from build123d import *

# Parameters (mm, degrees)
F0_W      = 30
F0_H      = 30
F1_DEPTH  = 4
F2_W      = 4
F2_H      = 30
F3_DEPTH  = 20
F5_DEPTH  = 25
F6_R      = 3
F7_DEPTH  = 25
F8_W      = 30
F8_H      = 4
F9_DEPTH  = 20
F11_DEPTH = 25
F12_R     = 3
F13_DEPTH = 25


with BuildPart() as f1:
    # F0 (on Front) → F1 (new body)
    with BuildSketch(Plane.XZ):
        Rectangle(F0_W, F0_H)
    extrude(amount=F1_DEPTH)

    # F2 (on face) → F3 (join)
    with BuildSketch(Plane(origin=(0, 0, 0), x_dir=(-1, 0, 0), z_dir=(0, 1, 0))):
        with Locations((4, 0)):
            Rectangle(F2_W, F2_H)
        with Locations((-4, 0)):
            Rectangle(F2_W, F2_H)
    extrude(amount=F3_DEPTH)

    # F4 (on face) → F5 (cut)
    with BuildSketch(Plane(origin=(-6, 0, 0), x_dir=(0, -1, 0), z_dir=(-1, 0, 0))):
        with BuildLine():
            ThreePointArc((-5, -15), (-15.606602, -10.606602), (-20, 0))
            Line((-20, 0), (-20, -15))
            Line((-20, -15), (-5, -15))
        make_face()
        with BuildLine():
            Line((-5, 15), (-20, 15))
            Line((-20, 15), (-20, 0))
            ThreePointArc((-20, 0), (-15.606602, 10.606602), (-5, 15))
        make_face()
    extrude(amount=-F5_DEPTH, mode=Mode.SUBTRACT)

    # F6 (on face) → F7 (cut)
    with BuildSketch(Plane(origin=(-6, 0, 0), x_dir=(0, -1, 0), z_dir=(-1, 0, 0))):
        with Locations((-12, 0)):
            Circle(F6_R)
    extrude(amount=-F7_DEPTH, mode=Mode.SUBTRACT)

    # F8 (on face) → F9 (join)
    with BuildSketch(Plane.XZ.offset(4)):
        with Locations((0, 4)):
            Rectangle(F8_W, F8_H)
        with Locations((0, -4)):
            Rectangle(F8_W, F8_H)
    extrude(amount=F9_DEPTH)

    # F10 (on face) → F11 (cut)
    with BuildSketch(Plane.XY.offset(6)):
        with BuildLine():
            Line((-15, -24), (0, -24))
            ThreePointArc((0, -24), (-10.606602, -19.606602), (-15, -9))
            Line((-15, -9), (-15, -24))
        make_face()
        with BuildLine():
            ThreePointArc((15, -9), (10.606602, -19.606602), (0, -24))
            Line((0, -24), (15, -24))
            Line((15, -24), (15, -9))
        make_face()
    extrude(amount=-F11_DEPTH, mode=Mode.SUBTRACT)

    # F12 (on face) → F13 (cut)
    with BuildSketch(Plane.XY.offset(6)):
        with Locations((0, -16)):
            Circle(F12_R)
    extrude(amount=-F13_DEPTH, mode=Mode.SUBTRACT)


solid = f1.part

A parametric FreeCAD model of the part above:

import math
import FreeCAD as App
import Part
import Sketcher
Q = App.Units.Quantity

doc = App.newDocument("Part")
body = doc.addObject("PartDesign::Body", "Body")

# Sketch on XZ plane
sketch1 = body.newObject("Sketcher::SketchObject", "Sketch")
sketch1.AttachmentSupport = (doc.getObject("XZ_Plane"), [""])
sketch1.MapMode = "FlatFace"
sketch1.addGeometry(Part.LineSegment(App.Vector(-15, 15, 0), App.Vector(-15, -15, 0)), False)
sketch1.addGeometry(Part.LineSegment(App.Vector(-15, -15, 0), App.Vector(15, -15, 0)), False)
sketch1.addGeometry(Part.LineSegment(App.Vector(15, -15, 0), App.Vector(15, 15, 0)), False)
sketch1.addGeometry(Part.LineSegment(App.Vector(15, 15, 0), App.Vector(-15, 15, 0)), False)
sketch1.addConstraint(Sketcher.Constraint("Coincident", 0, 2, 1, 1))
sketch1.addConstraint(Sketcher.Constraint("Coincident", 1, 2, 2, 1))
sketch1.addConstraint(Sketcher.Constraint("Coincident", 2, 2, 3, 1))
sketch1.addConstraint(Sketcher.Constraint("Coincident", 3, 2, 0, 1))
sketch1.addConstraint(Sketcher.Constraint("Vertical", 0))
sketch1.addConstraint(Sketcher.Constraint("Horizontal", 1))
sketch1.addConstraint(Sketcher.Constraint("Vertical", 2))
sketch1.addConstraint(Sketcher.Constraint("Horizontal", 3))
sketch1.addConstraint(Sketcher.Constraint("Symmetric", 0, 2, 2, 2, -1, 1))
sketch1.addConstraint(Sketcher.Constraint("Equal", 3, 0))
sketch1.addConstraint(Sketcher.Constraint("DistanceX", 1, 1, 1, 2, Q("30 mm")))
pad1 = body.newObject("PartDesign::Pad", "Pad")
pad1.Profile = sketch1
pad1.Length = 4

# Sketch on XZ plane
sketch2 = body.newObject("Sketcher::SketchObject", "Sketch001")
sketch2.AttachmentSupport = (doc.getObject("XZ_Plane"), [""])
sketch2.MapMode = "FlatFace"
sketch2.addGeometry(Part.LineSegment(App.Vector(-2, 15, 0), App.Vector(-2, -15, 0)), False)
sketch2.addGeometry(Part.LineSegment(App.Vector(-2, -15, 0), App.Vector(-6, -15, 0)), False)
sketch2.addGeometry(Part.LineSegment(App.Vector(-6, -15, 0), App.Vector(-6, 15, 0)), False)
sketch2.addGeometry(Part.LineSegment(App.Vector(-6, 15, 0), App.Vector(-2, 15, 0)), False)
sketch2.addGeometry(Part.LineSegment(App.Vector(6, 15, 0), App.Vector(6, -15, 0)), False)
sketch2.addGeometry(Part.LineSegment(App.Vector(6, -15, 0), App.Vector(2, -15, 0)), False)
sketch2.addGeometry(Part.LineSegment(App.Vector(2, -15, 0), App.Vector(2, 15, 0)), False)
sketch2.addGeometry(Part.LineSegment(App.Vector(2, 15, 0), App.Vector(6, 15, 0)), False)
sketch2.addConstraint(Sketcher.Constraint("Coincident", 0, 2, 1, 1))
sketch2.addConstraint(Sketcher.Constraint("Coincident", 1, 2, 2, 1))
sketch2.addConstraint(Sketcher.Constraint("Coincident", 2, 2, 3, 1))
sketch2.addConstraint(Sketcher.Constraint("Coincident", 3, 2, 0, 1))
sketch2.addConstraint(Sketcher.Constraint("Coincident", 4, 2, 5, 1))
sketch2.addConstraint(Sketcher.Constraint("Coincident", 5, 2, 6, 1))
sketch2.addConstraint(Sketcher.Constraint("Coincident", 6, 2, 7, 1))
sketch2.addConstraint(Sketcher.Constraint("Coincident", 7, 2, 4, 1))
sketch2.addConstraint(Sketcher.Constraint("Vertical", 0))
sketch2.addConstraint(Sketcher.Constraint("Horizontal", 1))
sketch2.addConstraint(Sketcher.Constraint("Vertical", 2))
sketch2.addConstraint(Sketcher.Constraint("Horizontal", 3))
sketch2.addConstraint(Sketcher.Constraint("Vertical", 4))
sketch2.addConstraint(Sketcher.Constraint("Horizontal", 5))
sketch2.addConstraint(Sketcher.Constraint("Vertical", 6))
sketch2.addConstraint(Sketcher.Constraint("Horizontal", 7))
sketch2.addConstraint(Sketcher.Constraint("Symmetric", 2, 2, 4, 2, -1, 1))
sketch2.addConstraint(Sketcher.Constraint("Symmetric", 0, 2, 6, 2, -1, 1))
sketch2.addConstraint(Sketcher.Constraint("Horizontal", 1, 2, 4, 2))
sketch2.addConstraint(Sketcher.Constraint("DistanceX", 1, 2, 1, 1, Q("4 mm")))
sketch2.addConstraint(Sketcher.Constraint("DistanceY", 0, 2, 0, 1, Q("30 mm")))
sketch2.addConstraint(Sketcher.Constraint("DistanceX", 0, 2, -1, 1, Q("2 mm")))
pad2 = body.newObject("PartDesign::Pad", "Pad001")
pad2.Profile = sketch2
pad2.Length = 20
pad2.Reversed = True

# Sketch on YZ plane
sketch3 = body.newObject("Sketcher::SketchObject", "Sketch002")
sketch3.AttachmentSupport = (doc.getObject("YZ_Plane"), [""])
sketch3.MapMode = "FlatFace"
sketch3.AttachmentOffset = App.Placement(App.Vector(0, 0, -6), App.Rotation())
sketch3.addGeometry(Part.ArcOfCircle(Part.Circle(App.Vector(5.000001, -0.000001, 0), App.Vector(0, 0, 1), 14.999999), math.radians(-90.000004), math.radians(0.000004)), False)
sketch3.addGeometry(Part.LineSegment(App.Vector(20, 0, 0), App.Vector(20, -15, 0)), False)
sketch3.addGeometry(Part.LineSegment(App.Vector(20, -15, 0), App.Vector(5, -15, 0)), False)
sketch3.addGeometry(Part.LineSegment(App.Vector(5, 15, 0), App.Vector(20, 15, 0)), False)
sketch3.addGeometry(Part.LineSegment(App.Vector(20, 15, 0), App.Vector(20, 0, 0)), False)
sketch3.addGeometry(Part.ArcOfCircle(Part.Circle(App.Vector(5.000001, 0.000001, 0), App.Vector(0, 0, 1), 14.999999), math.radians(-0.000004), math.radians(90.000004)), False)
sketch3.addConstraint(Sketcher.Constraint("Tangent", 0, 2, 1, 1))
sketch3.addConstraint(Sketcher.Constraint("Coincident", 1, 2, 2, 1))
sketch3.addConstraint(Sketcher.Constraint("Tangent", 2, 2, 0, 1))
sketch3.addConstraint(Sketcher.Constraint("Coincident", 3, 2, 4, 1))
sketch3.addConstraint(Sketcher.Constraint("Tangent", 4, 2, 5, 1))
sketch3.addConstraint(Sketcher.Constraint("Tangent", 5, 2, 3, 1))
sketch3.addConstraint(Sketcher.Constraint("Vertical", 1))
sketch3.addConstraint(Sketcher.Constraint("Horizontal", 2))
sketch3.addConstraint(Sketcher.Constraint("Horizontal", 3))
sketch3.addConstraint(Sketcher.Constraint("Vertical", 4))
sketch3.addConstraint(Sketcher.Constraint("Coincident", 5, 3, 0, 3))
sketch3.addConstraint(Sketcher.Constraint("Equal", 0, 5))
sketch3.addConstraint(Sketcher.Constraint("PointOnObject", 0, 3, -1))
sketch3.addConstraint(Sketcher.Constraint("Radius", 0, Q("14.999999 mm")))
sketch3.addConstraint(Sketcher.Constraint("DistanceX", -1, 1, 0, 3, Q("5.000001 mm")))
pocket1 = body.newObject("PartDesign::Pocket", "Pocket")
pocket1.Profile = sketch3
pocket1.Length = 25
pocket1.Reversed = True

# Sketch on YZ plane
sketch4 = body.newObject("Sketcher::SketchObject", "Sketch003")
sketch4.AttachmentSupport = (doc.getObject("YZ_Plane"), [""])
sketch4.MapMode = "FlatFace"
sketch4.AttachmentOffset = App.Placement(App.Vector(0, 0, -6), App.Rotation())
sketch4.addGeometry(Part.Circle(App.Vector(12, 0, 0), App.Vector(0, 0, 1), 3), False)
sketch4.addConstraint(Sketcher.Constraint("PointOnObject", 0, 3, -1))
sketch4.addConstraint(Sketcher.Constraint("Diameter", 0, Q("6 mm")))
sketch4.addConstraint(Sketcher.Constraint("DistanceX", -1, 1, 0, 3, Q("12 mm")))
pocket2 = body.newObject("PartDesign::Pocket", "Pocket001")
pocket2.Profile = sketch4
pocket2.Length = 25
pocket2.Reversed = True

# Sketch on XZ plane
sketch5 = body.newObject("Sketcher::SketchObject", "Sketch004")
sketch5.AttachmentSupport = (doc.getObject("XZ_Plane"), [""])
sketch5.MapMode = "FlatFace"
sketch5.AttachmentOffset = App.Placement(App.Vector(0, 0, 4), App.Rotation())
sketch5.addGeometry(Part.LineSegment(App.Vector(-15, 6, 0), App.Vector(-15, 2, 0)), False)
sketch5.addGeometry(Part.LineSegment(App.Vector(-15, 2, 0), App.Vector(15, 2, 0)), False)
sketch5.addGeometry(Part.LineSegment(App.Vector(15, 2, 0), App.Vector(15, 6, 0)), False)
sketch5.addGeometry(Part.LineSegment(App.Vector(15, 6, 0), App.Vector(-15, 6, 0)), False)
sketch5.addGeometry(Part.LineSegment(App.Vector(-15, -2, 0), App.Vector(-15, -6, 0)), False)
sketch5.addGeometry(Part.LineSegment(App.Vector(-15, -6, 0), App.Vector(15, -6, 0)), False)
sketch5.addGeometry(Part.LineSegment(App.Vector(15, -6, 0), App.Vector(15, -2, 0)), False)
sketch5.addGeometry(Part.LineSegment(App.Vector(15, -2, 0), App.Vector(-15, -2, 0)), False)
sketch5.addConstraint(Sketcher.Constraint("Coincident", 0, 2, 1, 1))
sketch5.addConstraint(Sketcher.Constraint("Coincident", 1, 2, 2, 1))
sketch5.addConstraint(Sketcher.Constraint("Coincident", 2, 2, 3, 1))
sketch5.addConstraint(Sketcher.Constraint("Coincident", 3, 2, 0, 1))
sketch5.addConstraint(Sketcher.Constraint("Coincident", 4, 2, 5, 1))
sketch5.addConstraint(Sketcher.Constraint("Coincident", 5, 2, 6, 1))
sketch5.addConstraint(Sketcher.Constraint("Coincident", 6, 2, 7, 1))
sketch5.addConstraint(Sketcher.Constraint("Coincident", 7, 2, 4, 1))
sketch5.addConstraint(Sketcher.Constraint("Vertical", 0))
sketch5.addConstraint(Sketcher.Constraint("Horizontal", 1))
sketch5.addConstraint(Sketcher.Constraint("Vertical", 2))
sketch5.addConstraint(Sketcher.Constraint("Horizontal", 3))
sketch5.addConstraint(Sketcher.Constraint("Vertical", 4))
sketch5.addConstraint(Sketcher.Constraint("Horizontal", 5))
sketch5.addConstraint(Sketcher.Constraint("Vertical", 6))
sketch5.addConstraint(Sketcher.Constraint("Horizontal", 7))
sketch5.addConstraint(Sketcher.Constraint("Symmetric", 2, 2, 4, 2, -1, 1))
sketch5.addConstraint(Sketcher.Constraint("Symmetric", 0, 2, 6, 2, -1, 1))
sketch5.addConstraint(Sketcher.Constraint("Vertical", 3, 2, 4, 2))
sketch5.addConstraint(Sketcher.Constraint("DistanceX", 1, 1, 1, 2, Q("30 mm")))
sketch5.addConstraint(Sketcher.Constraint("DistanceY", 0, 2, 0, 1, Q("4 mm")))
sketch5.addConstraint(Sketcher.Constraint("DistanceY", -1, 1, 0, 2, Q("2 mm")))
pad3 = body.newObject("PartDesign::Pad", "Pad002")
pad3.Profile = sketch5
pad3.Length = 20

# Sketch on XY plane
sketch6 = body.newObject("Sketcher::SketchObject", "Sketch005")
sketch6.AttachmentSupport = (doc.getObject("XY_Plane"), [""])
sketch6.MapMode = "FlatFace"
sketch6.AttachmentOffset = App.Placement(App.Vector(0, 0, 6), App.Rotation())
sketch6.addGeometry(Part.LineSegment(App.Vector(-15, -24, 0), App.Vector(0, -24, 0)), False)
sketch6.addGeometry(Part.ArcOfCircle(Part.Circle(App.Vector(-0.000001, -9.000001, 0), App.Vector(0, 0, 1), 14.999999), math.radians(179.999996), math.radians(270.000004)), False)
sketch6.addGeometry(Part.LineSegment(App.Vector(-15, -9, 0), App.Vector(-15, -24, 0)), False)
sketch6.addGeometry(Part.ArcOfCircle(Part.Circle(App.Vector(0.000001, -9.000001, 0), App.Vector(0, 0, 1), 14.999999), math.radians(-90.000004), math.radians(0.000004)), False)
sketch6.addGeometry(Part.LineSegment(App.Vector(0, -24, 0), App.Vector(15, -24, 0)), False)
sketch6.addGeometry(Part.LineSegment(App.Vector(15, -24, 0), App.Vector(15, -9, 0)), False)
sketch6.addConstraint(Sketcher.Constraint("Tangent", 0, 2, 1, 2))
sketch6.addConstraint(Sketcher.Constraint("Tangent", 1, 1, 2, 1))
sketch6.addConstraint(Sketcher.Constraint("Coincident", 2, 2, 0, 1))
sketch6.addConstraint(Sketcher.Constraint("Tangent", 3, 1, 4, 1))
sketch6.addConstraint(Sketcher.Constraint("Coincident", 4, 2, 5, 1))
sketch6.addConstraint(Sketcher.Constraint("Tangent", 5, 2, 3, 2))
sketch6.addConstraint(Sketcher.Constraint("Horizontal", 0))
sketch6.addConstraint(Sketcher.Constraint("Vertical", 2))
sketch6.addConstraint(Sketcher.Constraint("Horizontal", 4))
sketch6.addConstraint(Sketcher.Constraint("Vertical", 5))
sketch6.addConstraint(Sketcher.Constraint("Coincident", 3, 3, 1, 3))
sketch6.addConstraint(Sketcher.Constraint("Equal", 1, 3))
sketch6.addConstraint(Sketcher.Constraint("PointOnObject", 1, 3, -2))
sketch6.addConstraint(Sketcher.Constraint("Radius", 1, Q("14.999999 mm")))
sketch6.addConstraint(Sketcher.Constraint("DistanceY", 1, 3, -1, 1, Q("9.000001 mm")))
pocket3 = body.newObject("PartDesign::Pocket", "Pocket002")
pocket3.Profile = sketch6
pocket3.Length = 25

# Sketch on XY plane
sketch7 = body.newObject("Sketcher::SketchObject", "Sketch006")
sketch7.AttachmentSupport = (doc.getObject("XY_Plane"), [""])
sketch7.MapMode = "FlatFace"
sketch7.AttachmentOffset = App.Placement(App.Vector(0, 0, 6), App.Rotation())
sketch7.addGeometry(Part.Circle(App.Vector(0, -16, 0), App.Vector(0, 0, 1), 3), False)
sketch7.addConstraint(Sketcher.Constraint("PointOnObject", 0, 3, -2))
sketch7.addConstraint(Sketcher.Constraint("Diameter", 0, Q("6 mm")))
sketch7.addConstraint(Sketcher.Constraint("DistanceY", 0, 3, -1, 1, Q("16 mm")))
pocket4 = body.newObject("PartDesign::Pocket", "Pocket003")
pocket4.Profile = sketch7
pocket4.Length = 25

doc.recompute()
